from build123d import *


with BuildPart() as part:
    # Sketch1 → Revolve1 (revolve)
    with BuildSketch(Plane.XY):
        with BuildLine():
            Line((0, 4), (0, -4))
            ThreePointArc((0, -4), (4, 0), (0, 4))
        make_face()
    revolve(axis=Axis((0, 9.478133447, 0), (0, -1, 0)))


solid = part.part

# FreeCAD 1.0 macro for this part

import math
import FreeCAD as App
import Part
import Sketcher
Q = App.Units.Quantity

doc = App.newDocument("Part")
body = doc.addObject("PartDesign::Body", "Body")

sketch1 = body.newObject("Sketcher::SketchObject", "Sketch")
sketch1.AttachmentSupport = (doc.getObject("XY_Plane"), [""])
sketch1.MapMode = "FlatFace"
sketch1.addGeometry([
    Part.LineSegment(App.Vector(0, 4, 0), App.Vector(0, -4, 0)),
    Part.ArcOfCircle(Part.Circle(App.Vector(0, 0, 0), App.Vector(0, 0, 1), 4), math.radians(-90), math.radians(90)),
], False)
sketch1.addConstraint([
    Sketcher.Constraint("Coincident", 0, 1, 1, 2),
    Sketcher.Constraint("Coincident", 1, 1, 0, 2),
    Sketcher.Constraint("Vertical", 0),
    Sketcher.Constraint("Coincident", 1, 3, -1, 1),
    Sketcher.Constraint("PointOnObject", 0, 1, -2),
    Sketcher.Constraint("Radius", 1, Q("4 mm")),
])
revolution = body.newObject("PartDesign::Revolution", "Revolution")
revolution.Profile = sketch1
revolution.ReferenceAxis = (sketch1, ["V_Axis"])
revolution.Angle = 360

doc.recompute()
